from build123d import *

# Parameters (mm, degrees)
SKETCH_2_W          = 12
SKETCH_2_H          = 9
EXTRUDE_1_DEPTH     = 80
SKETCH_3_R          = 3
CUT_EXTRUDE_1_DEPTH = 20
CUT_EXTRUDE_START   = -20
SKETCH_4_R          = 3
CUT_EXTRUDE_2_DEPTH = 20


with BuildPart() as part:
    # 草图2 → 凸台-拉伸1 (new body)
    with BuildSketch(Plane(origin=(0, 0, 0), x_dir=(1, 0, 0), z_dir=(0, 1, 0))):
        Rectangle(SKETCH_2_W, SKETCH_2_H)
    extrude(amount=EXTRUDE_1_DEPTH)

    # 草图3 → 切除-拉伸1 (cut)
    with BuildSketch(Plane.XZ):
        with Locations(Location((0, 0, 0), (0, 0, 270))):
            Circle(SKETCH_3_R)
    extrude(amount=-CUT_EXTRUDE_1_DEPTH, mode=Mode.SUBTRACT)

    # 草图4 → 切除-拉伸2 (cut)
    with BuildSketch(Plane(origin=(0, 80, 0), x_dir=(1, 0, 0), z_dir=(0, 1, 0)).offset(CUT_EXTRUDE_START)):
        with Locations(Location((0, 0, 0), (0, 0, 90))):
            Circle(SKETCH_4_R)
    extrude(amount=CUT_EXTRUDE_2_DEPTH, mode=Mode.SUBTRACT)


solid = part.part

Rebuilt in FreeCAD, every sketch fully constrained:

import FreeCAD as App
import Part
import Sketcher
from FreeCAD import Vector


def add_polygon(sketch, points):
    """Adds a closed chain of lines whose ends are joined by coincident constraints."""
    first, n = sketch.GeometryCount, len(points)
    for a, b in zip(points, points[1:] + points[:1]):
        sketch.addGeometry(Part.LineSegment(App.Vector(*a, 0), App.Vector(*b, 0)), False)
    for i in range(n):
        sketch.addConstraint(Sketcher.Constraint("Coincident", first + i, 2, first + (i + 1) % n, 1))

doc = App.newDocument("Part")
body = doc.addObject("PartDesign::Body", "Body")

sketch1 = body.newObject("Sketcher::SketchObject", "Sketch")
sketch1.AttachmentSupport = (doc.getObject("XZ_Plane"), [""])
sketch1.MapMode = "FlatFace"
add_polygon(sketch1, [(-6, -4), (-6, 4), (6, 4), (6, -4)])
sketch1.addConstraint([
    Sketcher.Constraint("Vertical", 0),
    Sketcher.Constraint("Horizontal", 1),
    Sketcher.Constraint("Vertical", 2),
    Sketcher.Constraint("Horizontal", 3),
    Sketcher.Constraint("Symmetric", 0, 2, 2, 2, -1, 1),
    Sketcher.Constraint("DistanceX", 1, 1, 1, 2, 12.0),
    Sketcher.Constraint("DistanceY", 0, 1, 0, 2, 9.0),
])
pad1 = body.newObject("PartDesign::Pad", "Pad")
pad1.Profile = sketch1
pad1.Length = 80
pad1.Reversed = True

sketch2 = body.newObject("Sketcher::SketchObject", "Sketch001")
sketch2.AttachmentSupport = (doc.getObject("XZ_Plane"), [""])
sketch2.MapMode = "FlatFace"
sketch2.addGeometry(Part.Circle(Vector(0, 0, 0), Vector(0, 0, 1), 3), False)
sketch2.addConstraint([
    Sketcher.Constraint("Coincident", 0, 3, -1, 1),
    Sketcher.Constraint("Diameter", 0, 6.0),
])
pocket1 = body.newObject("PartDesign::Pocket", "Pocket")
pocket1.Profile = sketch2
pocket1.Length = 20

sketch3 = body.newObject("Sketcher::SketchObject", "Sketch002")
sketch3.AttachmentSupport = (doc.getObject("XZ_Plane"), [""])
sketch3.MapMode = "FlatFace"
sketch3.AttachmentOffset = App.Placement(Vector(0, 0, -60), App.Rotation())
sketch3.addGeometry(Part.Circle(Vector(0, 0, 0), Vector(0, 0, 1), 3), False)
sketch3.addConstraint([
    Sketcher.Constraint("Coincident", 0, 3, -1, 1),
    Sketcher.Constraint("Diameter", 0, 6.0),
])
pocket2 = body.newObject("PartDesign::Pocket", "Pocket001")
pocket2.Profile = sketch3
pocket2.Length = 20

doc.recompute()
